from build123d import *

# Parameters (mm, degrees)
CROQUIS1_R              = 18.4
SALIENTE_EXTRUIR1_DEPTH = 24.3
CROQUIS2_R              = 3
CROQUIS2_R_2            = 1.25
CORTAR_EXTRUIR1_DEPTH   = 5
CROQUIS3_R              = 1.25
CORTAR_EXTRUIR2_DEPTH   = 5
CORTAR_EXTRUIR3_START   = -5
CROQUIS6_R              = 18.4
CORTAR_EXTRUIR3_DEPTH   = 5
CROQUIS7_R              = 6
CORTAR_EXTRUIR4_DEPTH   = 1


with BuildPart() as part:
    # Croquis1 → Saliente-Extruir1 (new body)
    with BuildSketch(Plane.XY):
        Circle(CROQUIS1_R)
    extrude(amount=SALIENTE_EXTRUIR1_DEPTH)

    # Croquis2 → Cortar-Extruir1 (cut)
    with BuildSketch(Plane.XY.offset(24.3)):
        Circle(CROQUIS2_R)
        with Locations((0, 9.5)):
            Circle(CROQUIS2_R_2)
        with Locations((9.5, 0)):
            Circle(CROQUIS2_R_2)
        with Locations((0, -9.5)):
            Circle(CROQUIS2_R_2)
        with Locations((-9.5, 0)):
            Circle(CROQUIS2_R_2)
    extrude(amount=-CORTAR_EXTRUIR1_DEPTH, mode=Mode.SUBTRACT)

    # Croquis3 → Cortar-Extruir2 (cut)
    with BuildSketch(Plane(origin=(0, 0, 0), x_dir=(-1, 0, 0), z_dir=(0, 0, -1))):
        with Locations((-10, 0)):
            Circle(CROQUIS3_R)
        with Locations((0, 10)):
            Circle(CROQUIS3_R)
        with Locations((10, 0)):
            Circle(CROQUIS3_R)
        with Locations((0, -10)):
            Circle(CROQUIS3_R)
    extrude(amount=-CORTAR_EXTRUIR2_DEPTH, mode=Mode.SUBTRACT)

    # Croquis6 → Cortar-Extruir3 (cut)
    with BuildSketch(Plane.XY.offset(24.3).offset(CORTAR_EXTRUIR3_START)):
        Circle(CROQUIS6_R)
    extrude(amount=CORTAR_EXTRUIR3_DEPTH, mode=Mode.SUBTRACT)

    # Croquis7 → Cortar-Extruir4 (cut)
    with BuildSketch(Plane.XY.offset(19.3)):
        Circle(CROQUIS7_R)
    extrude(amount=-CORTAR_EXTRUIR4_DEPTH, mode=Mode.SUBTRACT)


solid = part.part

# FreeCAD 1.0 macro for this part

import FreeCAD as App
import Part
import Sketcher

doc = App.newDocument("Part")
body = doc.addObject("PartDesign::Body", "Body")

# Sketch on XY plane
sketch1 = doc.addObject("Sketcher::SketchObject", "Sketch")
body.addObject(sketch1)
sketch1.AttachmentSupport = (doc.XY_Plane, [""])
sketch1.MapMode = "FlatFace"
sketch1.addGeometry(Part.Circle(App.Vector(0, 0, 0), App.Vector(0, 0, 1), 18), False)
sketch1.addConstraint(Sketcher.Constraint("Coincident", 0, 3, -1, 1))
sketch1.addConstraint(Sketcher.Constraint("Diameter", 0, 36.8))
pad1 = doc.addObject("PartDesign::Pad", "Pad")
body.addObject(pad1)
pad1.Profile = sketch1
pad1.Length = 24.3

# Sketch on XY plane
sketch2 = doc.addObject("Sketcher::SketchObject", "Sketch001")
body.addObject(sketch2)
sketch2.AttachmentSupport = (doc.XY_Plane, [""])
sketch2.MapMode = "FlatFace"
sketch2.AttachmentOffset = App.Placement(App.Vector(0, 0, 24.3), App.Rotation())
sketch2.addGeometry(Part.Circle(App.Vector(0, 0, 0), App.Vector(0, 0, 1), 3), False)
sketch2.addGeometry(Part.Circle(App.Vector(0, 9.5, 0), App.Vector(0, 0, 1), 1.2), False)
sketch2.addGeometry(Part.Circle(App.Vector(9.5, 0, 0), App.Vector(0, 0, 1), 1.2), False)
sketch2.addGeometry(Part.Circle(App.Vector(0, -9.5, 0), App.Vector(0, 0, 1), 1.2), False)
sketch2.addGeometry(Part.Circle(App.Vector(-9.5, 0, 0), App.Vector(0, 0, 1), 1.2), False)
sketch2.addConstraint(Sketcher.Constraint("Coincident", 0, 3, -1, 1))
sketch2.addConstraint(Sketcher.Constraint("Equal", 1, 2))
sketch2.addConstraint(Sketcher.Constraint("Equal", 2, 3))
sketch2.addConstraint(Sketcher.Constraint("Equal", 3, 4))
sketch2.addConstraint(Sketcher.Constraint("Symmetric", 1, 3, 3, 3, -1, 1))
sketch2.addConstraint(Sketcher.Constraint("Symmetric", 2, 3, 4, 3, -1, 1))
sketch2.addConstraint(Sketcher.Constraint("PointOnObject", 1, 3, -2))
sketch2.addConstraint(Sketcher.Constraint("PointOnObject", 2, 3, -1))
sketch2.addConstraint(Sketcher.Constraint("Diameter", 0, 6.0))
sketch2.addConstraint(Sketcher.Constraint("Diameter", 1, 2.5))
sketch2.addConstraint(Sketcher.Constraint("DistanceY", 3, 3, 1, 3, 19.0))
sketch2.addConstraint(Sketcher.Constraint("DistanceX", 4, 3, 2, 3, 19.0))
pocket1 = doc.addObject("PartDesign::Pocket", "Pocket")
body.addObject(pocket1)
pocket1.Profile = sketch2
pocket1.Length = 5

# Sketch on XY plane
sketch3 = doc.addObject("Sketcher::SketchObject", "Sketch002")
body.addObject(sketch3)
sketch3.AttachmentSupport = (doc.XY_Plane, [""])
sketch3.MapMode = "FlatFace"
sketch3.addGeometry(Part.Circle(App.Vector(10, 0, 0), App.Vector(0, 0, 1), 1.2), False)
sketch3.addGeometry(Part.Circle(App.Vector(0, 10, 0), App.Vector(0, 0, 1), 1.2), False)
sketch3.addGeometry(Part.Circle(App.Vector(-10, 0, 0), App.Vector(0, 0, 1), 1.2), False)
sketch3.addGeometry(Part.Circle(App.Vector(0, -10, 0), App.Vector(0, 0, 1), 1.2), False)
sketch3.addConstraint(Sketcher.Constraint("Equal", 0, 1))
sketch3.addConstraint(Sketcher.Constraint("Equal", 1, 2))
sketch3.addConstraint(Sketcher.Constraint("Equal", 2, 3))
sketch3.addConstraint(Sketcher.Constraint("Symmetric", 0, 3, 2, 3, -1, 1))
sketch3.addConstraint(Sketcher.Constraint("Symmetric", 1, 3, 3, 3, -1, 1))
sketch3.addConstraint(Sketcher.Constraint("PointOnObject", 0, 3, -1))
sketch3.addConstraint(Sketcher.Constraint("PointOnObject", 1, 3, -2))
sketch3.addConstraint(Sketcher.Constraint("Diameter", 0, 2.5))
sketch3.addConstraint(Sketcher.Constraint("DistanceX", -1, 1, 0, 3, 10.0))
sketch3.addConstraint(Sketcher.Constraint("DistanceY", -1, 1, 1, 3, 10.0))
pocket2 = doc.addObject("PartDesign::Pocket", "Pocket001")
body.addObject(pocket2)
pocket2.Profile = sketch3
pocket2.Length = 5
pocket2.Reversed = True

# Sketch on XY plane
sketch4 = doc.addObject("Sketcher::SketchObject", "Sketch003")
body.addObject(sketch4)
sketch4.AttachmentSupport = (doc.XY_Plane, [""])
sketch4.MapMode = "FlatFace"
sketch4.AttachmentOffset = App.Placement(App.Vector(0, 0, 19.3), App.Rotation())
sketch4.addGeometry(Part.Circle(App.Vector(0, 0, 0), App.Vector(0, 0, 1), 18), False)
sketch4.addConstraint(Sketcher.Constraint("Coincident", 0, 3, -1, 1))
sketch4.addConstraint(Sketcher.Constraint("Diameter", 0, 36.8))
pocket3 = doc.addObject("PartDesign::Pocket", "Pocket002")
body.addObject(pocket3)
pocket3.Profile = sketch4
pocket3.Length = 5
pocket3.Reversed = True

# Sketch on XY plane
sketch5 = doc.addObject("Sketcher::SketchObject", "Sketch004")
body.addObject(sketch5)
sketch5.AttachmentSupport = (doc.XY_Plane, [""])
sketch5.MapMode = "FlatFace"
sketch5.AttachmentOffset = App.Placement(App.Vector(0, 0, 19.3), App.Rotation())
sketch5.addGeometry(Part.Circle(App.Vector(0, 0, 0), App.Vector(0, 0, 1), 6), False)
sketch5.addConstraint(Sketcher.Constraint("Coincident", 0, 3, -1, 1))
sketch5.addConstraint(Sketcher.Constraint("Diameter", 0, 12.0))
pocket4 = doc.addObject("PartDesign::Pocket", "Pocket003")
body.addObject(pocket4)
pocket4.Profile = sketch5
pocket4.Length = 1

doc.recompute()
